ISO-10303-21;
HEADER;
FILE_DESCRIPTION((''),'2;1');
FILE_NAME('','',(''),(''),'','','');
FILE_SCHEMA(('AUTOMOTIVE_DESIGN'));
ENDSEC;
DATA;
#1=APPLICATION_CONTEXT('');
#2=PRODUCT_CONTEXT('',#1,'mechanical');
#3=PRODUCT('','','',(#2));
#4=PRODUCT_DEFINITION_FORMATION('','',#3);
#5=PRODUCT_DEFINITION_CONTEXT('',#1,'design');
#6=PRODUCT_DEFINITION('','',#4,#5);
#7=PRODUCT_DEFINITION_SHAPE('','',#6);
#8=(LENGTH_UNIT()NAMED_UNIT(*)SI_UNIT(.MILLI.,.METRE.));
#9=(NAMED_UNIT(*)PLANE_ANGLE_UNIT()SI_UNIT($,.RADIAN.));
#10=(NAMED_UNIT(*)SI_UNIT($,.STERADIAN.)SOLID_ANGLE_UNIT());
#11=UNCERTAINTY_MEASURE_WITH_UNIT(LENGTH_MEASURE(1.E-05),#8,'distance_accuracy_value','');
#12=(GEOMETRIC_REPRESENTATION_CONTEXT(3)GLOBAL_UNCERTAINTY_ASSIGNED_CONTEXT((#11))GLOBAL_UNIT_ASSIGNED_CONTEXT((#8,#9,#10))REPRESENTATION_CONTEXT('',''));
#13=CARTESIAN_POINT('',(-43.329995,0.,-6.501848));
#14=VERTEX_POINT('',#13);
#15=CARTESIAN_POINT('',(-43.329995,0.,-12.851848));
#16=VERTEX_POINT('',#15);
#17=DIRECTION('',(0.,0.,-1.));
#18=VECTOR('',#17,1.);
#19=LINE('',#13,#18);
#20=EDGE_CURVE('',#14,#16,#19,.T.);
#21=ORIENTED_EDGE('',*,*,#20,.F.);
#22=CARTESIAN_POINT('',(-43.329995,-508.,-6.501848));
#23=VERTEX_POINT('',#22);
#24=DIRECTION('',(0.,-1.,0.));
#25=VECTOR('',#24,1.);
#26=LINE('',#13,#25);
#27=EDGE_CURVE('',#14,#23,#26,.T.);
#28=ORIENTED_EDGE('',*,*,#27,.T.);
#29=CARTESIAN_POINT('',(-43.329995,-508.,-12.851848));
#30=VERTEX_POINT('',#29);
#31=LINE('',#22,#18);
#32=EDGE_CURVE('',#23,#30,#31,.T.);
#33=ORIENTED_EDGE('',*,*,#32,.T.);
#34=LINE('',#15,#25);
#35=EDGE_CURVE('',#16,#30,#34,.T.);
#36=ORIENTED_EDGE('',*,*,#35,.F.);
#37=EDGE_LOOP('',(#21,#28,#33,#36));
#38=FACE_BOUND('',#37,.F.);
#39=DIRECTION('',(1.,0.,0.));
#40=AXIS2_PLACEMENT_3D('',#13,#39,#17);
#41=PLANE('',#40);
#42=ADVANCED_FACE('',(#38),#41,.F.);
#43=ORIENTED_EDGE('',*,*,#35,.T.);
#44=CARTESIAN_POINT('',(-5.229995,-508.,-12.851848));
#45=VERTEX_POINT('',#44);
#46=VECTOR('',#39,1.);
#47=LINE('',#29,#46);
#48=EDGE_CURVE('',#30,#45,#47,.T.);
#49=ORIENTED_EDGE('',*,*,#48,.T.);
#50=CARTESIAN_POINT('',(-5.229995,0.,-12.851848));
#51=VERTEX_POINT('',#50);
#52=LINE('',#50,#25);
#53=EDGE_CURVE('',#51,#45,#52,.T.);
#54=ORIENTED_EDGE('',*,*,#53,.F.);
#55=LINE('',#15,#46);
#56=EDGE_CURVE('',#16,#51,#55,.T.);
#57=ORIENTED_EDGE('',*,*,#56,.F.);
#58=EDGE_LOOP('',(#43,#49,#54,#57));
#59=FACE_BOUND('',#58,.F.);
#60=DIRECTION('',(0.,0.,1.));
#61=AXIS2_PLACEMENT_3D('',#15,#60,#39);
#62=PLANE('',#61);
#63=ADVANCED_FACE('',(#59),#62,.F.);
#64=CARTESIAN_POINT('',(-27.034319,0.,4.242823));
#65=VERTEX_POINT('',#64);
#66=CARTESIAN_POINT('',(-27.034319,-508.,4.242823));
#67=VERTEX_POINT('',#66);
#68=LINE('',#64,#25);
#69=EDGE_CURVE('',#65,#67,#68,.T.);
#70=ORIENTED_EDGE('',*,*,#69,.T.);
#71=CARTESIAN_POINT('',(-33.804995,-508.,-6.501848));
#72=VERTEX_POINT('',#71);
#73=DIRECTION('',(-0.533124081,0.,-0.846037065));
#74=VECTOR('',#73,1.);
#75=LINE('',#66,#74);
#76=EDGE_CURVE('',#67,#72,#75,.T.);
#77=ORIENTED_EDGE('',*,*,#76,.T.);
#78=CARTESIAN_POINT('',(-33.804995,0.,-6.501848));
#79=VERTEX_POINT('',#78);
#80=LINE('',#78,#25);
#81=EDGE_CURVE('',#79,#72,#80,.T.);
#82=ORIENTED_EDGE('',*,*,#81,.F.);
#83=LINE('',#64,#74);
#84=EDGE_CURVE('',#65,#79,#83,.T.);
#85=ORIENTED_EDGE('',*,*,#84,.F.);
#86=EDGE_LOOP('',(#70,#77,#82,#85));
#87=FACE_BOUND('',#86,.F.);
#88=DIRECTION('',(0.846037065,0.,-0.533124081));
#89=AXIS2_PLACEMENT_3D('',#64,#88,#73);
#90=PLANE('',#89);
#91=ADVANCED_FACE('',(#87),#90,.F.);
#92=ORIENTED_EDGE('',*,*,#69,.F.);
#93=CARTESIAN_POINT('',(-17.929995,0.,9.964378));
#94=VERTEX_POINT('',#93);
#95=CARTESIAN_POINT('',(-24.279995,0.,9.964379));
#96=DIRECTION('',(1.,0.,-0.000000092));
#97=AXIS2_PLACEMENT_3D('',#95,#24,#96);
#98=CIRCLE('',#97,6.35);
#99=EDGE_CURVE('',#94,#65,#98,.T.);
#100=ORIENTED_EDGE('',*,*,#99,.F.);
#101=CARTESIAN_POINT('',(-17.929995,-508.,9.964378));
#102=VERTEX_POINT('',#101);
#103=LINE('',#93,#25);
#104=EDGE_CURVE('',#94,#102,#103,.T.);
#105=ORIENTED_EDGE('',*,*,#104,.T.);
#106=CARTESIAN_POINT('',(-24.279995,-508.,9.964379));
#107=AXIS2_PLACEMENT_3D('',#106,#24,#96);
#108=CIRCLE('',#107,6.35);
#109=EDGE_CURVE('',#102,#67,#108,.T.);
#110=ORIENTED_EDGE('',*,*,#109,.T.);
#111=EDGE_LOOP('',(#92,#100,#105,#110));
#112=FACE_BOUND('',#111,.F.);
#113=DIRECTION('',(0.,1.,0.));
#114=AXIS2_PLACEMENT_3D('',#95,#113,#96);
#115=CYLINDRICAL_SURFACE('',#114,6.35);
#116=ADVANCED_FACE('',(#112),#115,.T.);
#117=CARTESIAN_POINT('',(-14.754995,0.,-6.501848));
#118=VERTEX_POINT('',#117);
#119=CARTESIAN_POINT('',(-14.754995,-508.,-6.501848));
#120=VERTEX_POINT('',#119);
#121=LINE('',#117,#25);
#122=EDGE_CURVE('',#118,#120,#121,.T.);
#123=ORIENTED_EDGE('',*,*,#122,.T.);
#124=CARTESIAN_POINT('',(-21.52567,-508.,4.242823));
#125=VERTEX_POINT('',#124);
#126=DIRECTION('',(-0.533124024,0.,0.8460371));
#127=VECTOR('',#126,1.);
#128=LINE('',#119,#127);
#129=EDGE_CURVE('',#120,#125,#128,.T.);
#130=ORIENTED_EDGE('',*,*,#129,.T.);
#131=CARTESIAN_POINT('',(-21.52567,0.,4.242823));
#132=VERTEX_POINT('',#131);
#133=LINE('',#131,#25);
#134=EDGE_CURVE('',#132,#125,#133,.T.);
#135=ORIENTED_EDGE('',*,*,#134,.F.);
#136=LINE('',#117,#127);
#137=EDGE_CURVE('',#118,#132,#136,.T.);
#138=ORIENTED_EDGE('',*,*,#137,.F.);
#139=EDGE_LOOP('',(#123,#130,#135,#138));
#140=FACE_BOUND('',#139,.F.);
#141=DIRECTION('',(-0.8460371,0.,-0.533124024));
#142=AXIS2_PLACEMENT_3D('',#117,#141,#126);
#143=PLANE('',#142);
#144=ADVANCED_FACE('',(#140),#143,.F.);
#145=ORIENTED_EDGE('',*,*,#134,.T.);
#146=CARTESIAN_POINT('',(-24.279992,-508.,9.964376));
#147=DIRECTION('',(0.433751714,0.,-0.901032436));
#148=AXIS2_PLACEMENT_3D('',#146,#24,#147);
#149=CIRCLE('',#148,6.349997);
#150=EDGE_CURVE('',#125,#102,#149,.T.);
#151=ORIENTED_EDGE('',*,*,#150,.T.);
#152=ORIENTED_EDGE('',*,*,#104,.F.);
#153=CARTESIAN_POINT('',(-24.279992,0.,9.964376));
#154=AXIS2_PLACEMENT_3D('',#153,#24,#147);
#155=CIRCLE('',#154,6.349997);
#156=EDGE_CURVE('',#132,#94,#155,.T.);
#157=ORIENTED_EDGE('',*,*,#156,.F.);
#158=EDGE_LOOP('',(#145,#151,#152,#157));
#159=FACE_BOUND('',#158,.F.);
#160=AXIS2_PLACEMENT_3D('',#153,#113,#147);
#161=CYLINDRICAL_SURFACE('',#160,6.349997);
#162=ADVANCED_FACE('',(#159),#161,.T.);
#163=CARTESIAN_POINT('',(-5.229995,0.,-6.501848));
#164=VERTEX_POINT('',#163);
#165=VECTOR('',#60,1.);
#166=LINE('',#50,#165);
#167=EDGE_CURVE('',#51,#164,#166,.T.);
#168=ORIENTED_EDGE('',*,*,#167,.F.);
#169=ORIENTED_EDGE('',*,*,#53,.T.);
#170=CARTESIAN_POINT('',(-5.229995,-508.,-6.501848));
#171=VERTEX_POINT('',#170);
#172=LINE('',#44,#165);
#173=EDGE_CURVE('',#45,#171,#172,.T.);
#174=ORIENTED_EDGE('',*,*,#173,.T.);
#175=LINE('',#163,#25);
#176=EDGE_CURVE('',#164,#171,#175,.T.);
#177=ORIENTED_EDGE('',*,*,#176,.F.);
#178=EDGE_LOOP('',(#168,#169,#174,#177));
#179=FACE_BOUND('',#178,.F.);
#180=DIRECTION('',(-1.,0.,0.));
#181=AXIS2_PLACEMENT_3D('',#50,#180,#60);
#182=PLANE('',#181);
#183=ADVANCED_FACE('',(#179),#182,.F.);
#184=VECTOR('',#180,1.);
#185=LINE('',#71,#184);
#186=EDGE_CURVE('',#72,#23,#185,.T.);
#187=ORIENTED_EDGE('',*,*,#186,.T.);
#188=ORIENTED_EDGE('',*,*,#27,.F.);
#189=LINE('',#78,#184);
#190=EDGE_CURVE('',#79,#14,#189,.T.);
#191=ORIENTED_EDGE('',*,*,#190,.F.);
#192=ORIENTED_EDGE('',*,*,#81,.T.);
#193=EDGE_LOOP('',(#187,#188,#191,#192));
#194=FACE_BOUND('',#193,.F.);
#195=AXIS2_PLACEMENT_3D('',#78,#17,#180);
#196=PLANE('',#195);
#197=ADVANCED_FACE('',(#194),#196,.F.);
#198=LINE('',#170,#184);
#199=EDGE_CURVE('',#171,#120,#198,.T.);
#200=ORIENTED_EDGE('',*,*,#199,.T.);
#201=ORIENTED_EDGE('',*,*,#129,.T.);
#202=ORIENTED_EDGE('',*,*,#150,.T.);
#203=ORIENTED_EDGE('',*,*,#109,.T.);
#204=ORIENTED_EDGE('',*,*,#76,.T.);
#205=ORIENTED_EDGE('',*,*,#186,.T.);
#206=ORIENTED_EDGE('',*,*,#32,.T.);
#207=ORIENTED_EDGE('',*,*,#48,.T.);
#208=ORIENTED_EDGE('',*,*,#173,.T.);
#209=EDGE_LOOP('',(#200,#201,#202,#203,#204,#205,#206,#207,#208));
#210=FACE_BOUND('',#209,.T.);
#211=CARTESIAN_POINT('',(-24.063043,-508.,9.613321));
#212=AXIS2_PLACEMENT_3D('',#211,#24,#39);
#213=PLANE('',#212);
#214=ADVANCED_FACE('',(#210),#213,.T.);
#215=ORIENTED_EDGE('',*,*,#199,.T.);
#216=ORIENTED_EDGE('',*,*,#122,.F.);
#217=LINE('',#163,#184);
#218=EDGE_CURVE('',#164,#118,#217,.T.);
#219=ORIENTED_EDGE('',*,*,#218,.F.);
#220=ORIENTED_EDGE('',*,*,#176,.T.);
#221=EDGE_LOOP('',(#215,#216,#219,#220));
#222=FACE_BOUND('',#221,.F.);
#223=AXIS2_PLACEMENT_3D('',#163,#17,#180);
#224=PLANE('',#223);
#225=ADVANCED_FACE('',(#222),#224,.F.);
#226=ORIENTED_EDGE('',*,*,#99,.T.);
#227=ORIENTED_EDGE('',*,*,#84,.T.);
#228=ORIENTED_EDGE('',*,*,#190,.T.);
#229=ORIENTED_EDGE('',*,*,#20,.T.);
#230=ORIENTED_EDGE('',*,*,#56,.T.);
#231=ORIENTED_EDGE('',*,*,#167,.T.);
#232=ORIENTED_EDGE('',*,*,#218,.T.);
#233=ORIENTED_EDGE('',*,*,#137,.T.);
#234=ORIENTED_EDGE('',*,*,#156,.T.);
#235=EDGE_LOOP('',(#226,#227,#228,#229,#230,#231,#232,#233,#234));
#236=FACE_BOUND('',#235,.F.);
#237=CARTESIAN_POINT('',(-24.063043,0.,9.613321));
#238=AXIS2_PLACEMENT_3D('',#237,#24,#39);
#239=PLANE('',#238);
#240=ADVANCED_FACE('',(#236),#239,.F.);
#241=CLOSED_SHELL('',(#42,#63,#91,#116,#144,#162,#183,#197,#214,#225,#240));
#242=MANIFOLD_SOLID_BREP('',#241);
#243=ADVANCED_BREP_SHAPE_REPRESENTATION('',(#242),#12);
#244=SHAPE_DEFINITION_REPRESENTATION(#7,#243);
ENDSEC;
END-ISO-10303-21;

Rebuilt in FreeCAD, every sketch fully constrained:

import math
import FreeCAD as App
import Part
import Sketcher
from FreeCAD import Vector
Q = App.Units.Quantity

doc = App.newDocument("Part")
body = doc.addObject("PartDesign::Body", "Body")

# Sketch on XZ plane
sketch1 = body.newObject("Sketcher::SketchObject", "Sketch")
sketch1.AttachmentSupport = (doc.getObject("XZ_Plane"), [""])
sketch1.MapMode = "FlatFace"
sketch1.addGeometry([
    Part.ArcOfCircle(Part.Circle(Vector(-24, 10, 0), Vector(0, 0, 1), 6), math.radians(-64), math.radians(0)),  # 0
    Part.ArcOfCircle(Part.Circle(Vector(-24, 10, 0), Vector(0, 0, 1), 6), math.radians(0), math.radians(244)),  # 1
    Part.LineSegment(Vector(-27, 4, 0), Vector(-34, -7, 0)),  # 2
    Part.LineSegment(Vector(-34, -7, 0), Vector(-43, -7, 0)),  # 3
    Part.LineSegment(Vector(-43, -7, 0), Vector(-43, -13, 0)),  # 4
    Part.LineSegment(Vector(-43, -13, 0), Vector(-5, -13, 0)),  # 5
    Part.LineSegment(Vector(-5, -13, 0), Vector(-5, -7, 0)),  # 6
    Part.LineSegment(Vector(-5, -7, 0), Vector(-15, -7, 0)),  # 7
    Part.LineSegment(Vector(-15, -7, 0), Vector(-22, 4, 0)),  # 8
], False)
sketch1.addConstraint([
    Sketcher.Constraint("Tangent", 0, 2, 1, 1),
    Sketcher.Constraint("Coincident", 1, 2, 2, 1),
    Sketcher.Constraint("Coincident", 2, 2, 3, 1),
    Sketcher.Constraint("Coincident", 3, 2, 4, 1),
    Sketcher.Constraint("Coincident", 4, 2, 5, 1),
    Sketcher.Constraint("Coincident", 5, 2, 6, 1),
    Sketcher.Constraint("Coincident", 6, 2, 7, 1),
    Sketcher.Constraint("Coincident", 7, 2, 8, 1),
    Sketcher.Constraint("Coincident", 8, 2, 0, 1),
    Sketcher.Constraint("Horizontal", 3),
    Sketcher.Constraint("Vertical", 4),
    Sketcher.Constraint("Horizontal", 5),
    Sketcher.Constraint("Vertical", 6),
    Sketcher.Constraint("Horizontal", 7),
    Sketcher.Constraint("Horizontal", 1, 3, 0, 2),
    Sketcher.Constraint("Horizontal", 3, 2, 6, 2),
    Sketcher.Constraint("Horizontal", 1, 2, 8, 2),
    Sketcher.Constraint("Equal", 3, 7),
    Sketcher.Constraint("Equal", 2, 8),
    Sketcher.Constraint("Radius", 0, Q("0.2499999 in")),
    Sketcher.Constraint("Radius", 1, Q("0.25 in")),
    Sketcher.Constraint("DistanceX", 5, 1, 5, 2, Q("1.5 in")),
    Sketcher.Constraint("Distance", 2, Q("0.5 in")),
    Sketcher.Constraint("DistanceY", 4, 2, 4, 1, Q("0.25 in")),
    Sketcher.Constraint("DistanceX", 3, 2, 3, 1, Q("0.375 in")),
    Sketcher.Constraint("DistanceY", -1, 1, 1, 3, 9.964379),
    Sketcher.Constraint("DistanceX", 1, 2, -1, 1, 27.034319),
    Sketcher.Constraint("DistanceX", 8, 2, -1, 1, 21.52567),
])
pad1 = body.newObject("PartDesign::Pad", "Pad")
pad1.Profile = sketch1
pad1.Length = Q("20 in")

doc.recompute()
